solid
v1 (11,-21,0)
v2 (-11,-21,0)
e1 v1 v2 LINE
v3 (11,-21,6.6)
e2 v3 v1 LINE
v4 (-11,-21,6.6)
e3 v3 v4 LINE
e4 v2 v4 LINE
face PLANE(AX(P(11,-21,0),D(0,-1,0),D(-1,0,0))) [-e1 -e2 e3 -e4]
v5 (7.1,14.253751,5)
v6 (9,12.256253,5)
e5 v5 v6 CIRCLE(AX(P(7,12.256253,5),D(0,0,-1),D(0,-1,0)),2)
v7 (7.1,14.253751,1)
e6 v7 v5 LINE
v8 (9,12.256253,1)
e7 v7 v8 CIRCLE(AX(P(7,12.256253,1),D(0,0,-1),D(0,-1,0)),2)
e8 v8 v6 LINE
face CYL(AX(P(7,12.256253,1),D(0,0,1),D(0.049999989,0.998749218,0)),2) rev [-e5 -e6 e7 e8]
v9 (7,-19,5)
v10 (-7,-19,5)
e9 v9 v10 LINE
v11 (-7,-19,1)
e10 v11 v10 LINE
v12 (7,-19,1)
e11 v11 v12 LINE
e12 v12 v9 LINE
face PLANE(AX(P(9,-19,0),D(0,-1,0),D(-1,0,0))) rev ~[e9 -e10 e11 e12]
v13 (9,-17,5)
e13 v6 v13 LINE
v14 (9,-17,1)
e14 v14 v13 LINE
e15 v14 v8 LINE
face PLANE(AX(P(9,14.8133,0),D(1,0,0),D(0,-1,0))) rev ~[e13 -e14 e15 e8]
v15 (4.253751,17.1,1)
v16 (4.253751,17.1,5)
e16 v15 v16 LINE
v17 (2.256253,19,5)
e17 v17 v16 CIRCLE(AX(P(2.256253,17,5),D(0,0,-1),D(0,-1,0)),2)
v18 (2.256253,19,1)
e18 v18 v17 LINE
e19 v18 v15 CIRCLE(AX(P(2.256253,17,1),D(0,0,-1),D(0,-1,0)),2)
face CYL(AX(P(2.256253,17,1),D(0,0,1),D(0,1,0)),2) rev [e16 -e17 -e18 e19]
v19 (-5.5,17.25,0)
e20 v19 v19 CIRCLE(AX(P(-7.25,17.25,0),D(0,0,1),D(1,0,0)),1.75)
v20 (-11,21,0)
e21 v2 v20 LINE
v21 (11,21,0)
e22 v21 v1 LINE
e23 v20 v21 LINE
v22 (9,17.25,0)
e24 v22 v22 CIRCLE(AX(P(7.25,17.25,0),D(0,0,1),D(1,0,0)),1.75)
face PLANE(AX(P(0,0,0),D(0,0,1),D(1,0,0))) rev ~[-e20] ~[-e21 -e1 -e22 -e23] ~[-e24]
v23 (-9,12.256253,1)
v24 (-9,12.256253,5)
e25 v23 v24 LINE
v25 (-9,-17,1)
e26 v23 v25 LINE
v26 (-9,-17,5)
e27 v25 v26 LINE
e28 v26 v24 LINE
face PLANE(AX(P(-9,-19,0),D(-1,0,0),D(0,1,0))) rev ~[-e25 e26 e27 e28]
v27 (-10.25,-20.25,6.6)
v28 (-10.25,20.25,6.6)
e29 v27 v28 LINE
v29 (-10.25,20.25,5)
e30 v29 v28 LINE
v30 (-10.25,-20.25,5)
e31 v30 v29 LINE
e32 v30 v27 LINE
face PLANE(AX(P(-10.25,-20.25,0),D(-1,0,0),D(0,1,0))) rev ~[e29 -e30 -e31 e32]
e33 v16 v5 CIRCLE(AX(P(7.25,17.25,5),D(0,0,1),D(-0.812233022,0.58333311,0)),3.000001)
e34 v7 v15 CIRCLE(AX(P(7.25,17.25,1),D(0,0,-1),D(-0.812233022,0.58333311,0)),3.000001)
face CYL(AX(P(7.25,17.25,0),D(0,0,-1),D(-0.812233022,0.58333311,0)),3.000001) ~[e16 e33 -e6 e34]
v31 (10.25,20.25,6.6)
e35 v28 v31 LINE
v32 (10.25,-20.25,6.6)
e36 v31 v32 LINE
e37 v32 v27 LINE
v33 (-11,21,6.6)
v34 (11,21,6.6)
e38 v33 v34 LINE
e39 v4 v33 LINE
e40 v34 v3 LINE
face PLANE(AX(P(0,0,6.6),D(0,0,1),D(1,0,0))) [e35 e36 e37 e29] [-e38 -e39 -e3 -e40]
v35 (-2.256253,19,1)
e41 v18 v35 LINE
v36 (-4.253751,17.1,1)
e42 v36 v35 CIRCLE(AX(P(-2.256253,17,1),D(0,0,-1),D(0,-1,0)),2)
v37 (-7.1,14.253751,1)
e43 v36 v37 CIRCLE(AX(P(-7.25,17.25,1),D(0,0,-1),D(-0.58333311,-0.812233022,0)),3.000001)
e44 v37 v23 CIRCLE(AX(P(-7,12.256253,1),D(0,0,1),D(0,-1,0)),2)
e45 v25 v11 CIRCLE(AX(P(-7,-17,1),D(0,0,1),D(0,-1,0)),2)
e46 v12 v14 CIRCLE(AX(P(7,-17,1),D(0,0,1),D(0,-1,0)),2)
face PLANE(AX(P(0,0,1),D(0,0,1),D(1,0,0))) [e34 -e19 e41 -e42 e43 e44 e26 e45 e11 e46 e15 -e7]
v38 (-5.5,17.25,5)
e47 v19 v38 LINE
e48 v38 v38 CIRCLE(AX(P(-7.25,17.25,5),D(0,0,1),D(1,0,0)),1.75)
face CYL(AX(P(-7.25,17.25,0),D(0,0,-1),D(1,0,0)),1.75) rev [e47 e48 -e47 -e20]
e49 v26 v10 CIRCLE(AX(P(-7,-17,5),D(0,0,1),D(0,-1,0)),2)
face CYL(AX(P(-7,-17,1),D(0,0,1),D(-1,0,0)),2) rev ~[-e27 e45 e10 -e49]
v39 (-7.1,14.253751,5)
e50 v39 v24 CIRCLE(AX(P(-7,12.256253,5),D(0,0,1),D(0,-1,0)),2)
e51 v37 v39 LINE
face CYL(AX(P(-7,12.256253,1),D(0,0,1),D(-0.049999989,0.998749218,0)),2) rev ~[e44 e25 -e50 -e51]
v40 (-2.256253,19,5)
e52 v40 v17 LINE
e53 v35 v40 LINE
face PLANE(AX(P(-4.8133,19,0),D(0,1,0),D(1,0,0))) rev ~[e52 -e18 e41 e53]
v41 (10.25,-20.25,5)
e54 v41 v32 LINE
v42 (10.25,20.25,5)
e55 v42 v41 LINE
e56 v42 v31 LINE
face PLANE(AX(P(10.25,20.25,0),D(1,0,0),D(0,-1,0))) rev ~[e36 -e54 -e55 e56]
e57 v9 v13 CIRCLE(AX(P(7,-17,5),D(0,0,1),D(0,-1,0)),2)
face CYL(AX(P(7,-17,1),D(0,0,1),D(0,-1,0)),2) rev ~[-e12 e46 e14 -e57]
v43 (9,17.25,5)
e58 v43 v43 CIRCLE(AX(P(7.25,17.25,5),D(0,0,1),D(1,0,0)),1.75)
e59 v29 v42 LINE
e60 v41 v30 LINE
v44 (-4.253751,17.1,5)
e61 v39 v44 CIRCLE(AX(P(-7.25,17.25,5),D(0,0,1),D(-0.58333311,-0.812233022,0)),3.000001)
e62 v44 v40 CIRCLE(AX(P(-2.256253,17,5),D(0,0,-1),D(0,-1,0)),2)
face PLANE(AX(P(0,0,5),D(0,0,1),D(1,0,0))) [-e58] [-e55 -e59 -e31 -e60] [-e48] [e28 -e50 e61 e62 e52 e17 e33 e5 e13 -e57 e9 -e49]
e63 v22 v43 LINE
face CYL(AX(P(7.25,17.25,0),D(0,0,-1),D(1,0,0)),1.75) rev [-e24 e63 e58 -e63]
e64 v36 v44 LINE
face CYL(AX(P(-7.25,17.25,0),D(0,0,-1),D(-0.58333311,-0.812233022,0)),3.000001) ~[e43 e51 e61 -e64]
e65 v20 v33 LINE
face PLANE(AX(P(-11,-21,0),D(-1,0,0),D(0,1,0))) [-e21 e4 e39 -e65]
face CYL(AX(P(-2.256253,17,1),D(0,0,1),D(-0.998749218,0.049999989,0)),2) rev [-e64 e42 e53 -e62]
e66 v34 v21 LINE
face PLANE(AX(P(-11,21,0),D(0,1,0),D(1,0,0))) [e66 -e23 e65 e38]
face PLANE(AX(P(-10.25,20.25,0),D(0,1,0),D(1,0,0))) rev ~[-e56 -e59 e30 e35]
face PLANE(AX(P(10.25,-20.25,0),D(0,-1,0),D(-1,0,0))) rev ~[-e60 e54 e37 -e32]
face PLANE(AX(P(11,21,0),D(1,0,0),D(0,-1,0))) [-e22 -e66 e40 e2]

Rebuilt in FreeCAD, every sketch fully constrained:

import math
import FreeCAD as App
import Part
import Sketcher

V = App.Vector
Q = App.Units.Quantity


def edges_at(feature, points):
    """Names of the edges that pass closest to the given points."""
    edges = feature.Shape.Edges
    near = lambda p: min(range(len(edges)), key=lambda i: edges[i].distToShape(Part.Vertex(*p))[0])
    return sorted({f"Edge{near(p) + 1}" for p in points})

doc = App.newDocument("Part")
body = doc.addObject("PartDesign::Body", "Body")

# Sketch on XY plane
sketch1 = doc.addObject("Sketcher::SketchObject", "Sketch")
body.addObject(sketch1)
sketch1.AttachmentSupport = (doc.XY_Plane, [""])
sketch1.MapMode = "FlatFace"
sketch1.addGeometry(Part.LineSegment(V(11, 21, 0), V(-11, 21, 0)), False)
sketch1.addGeometry(Part.LineSegment(V(-11, 21, 0), V(-11, -21, 0)), False)
sketch1.addGeometry(Part.LineSegment(V(-11, -21, 0), V(11, -21, 0)), False)
sketch1.addGeometry(Part.LineSegment(V(11, -21, 0), V(11, 21, 0)), False)
sketch1.addGeometry(Part.LineSegment(V(10.25, 20.25, 0), V(10.25, -20.25, 0)), False)
sketch1.addGeometry(Part.LineSegment(V(10.25, -20.25, 0), V(-10.25, -20.25, 0)), False)
sketch1.addGeometry(Part.LineSegment(V(-10.25, -20.25, 0), V(-10.25, 20.25, 0)), False)
sketch1.addGeometry(Part.LineSegment(V(-10.25, 20.25, 0), V(10.25, 20.25, 0)), False)
sketch1.addConstraint(Sketcher.Constraint("Coincident", 0, 2, 1, 1))
sketch1.addConstraint(Sketcher.Constraint("Coincident", 1, 2, 2, 1))
sketch1.addConstraint(Sketcher.Constraint("Coincident", 2, 2, 3, 1))
sketch1.addConstraint(Sketcher.Constraint("Coincident", 3, 2, 0, 1))
sketch1.addConstraint(Sketcher.Constraint("Coincident", 4, 2, 5, 1))
sketch1.addConstraint(Sketcher.Constraint("Coincident", 5, 2, 6, 1))
sketch1.addConstraint(Sketcher.Constraint("Coincident", 6, 2, 7, 1))
sketch1.addConstraint(Sketcher.Constraint("Coincident", 7, 2, 4, 1))
sketch1.addConstraint(Sketcher.Constraint("Horizontal", 0))
sketch1.addConstraint(Sketcher.Constraint("Vertical", 1))
sketch1.addConstraint(Sketcher.Constraint("Horizontal", 2))
sketch1.addConstraint(Sketcher.Constraint("Vertical", 3))
sketch1.addConstraint(Sketcher.Constraint("Vertical", 4))
sketch1.addConstraint(Sketcher.Constraint("Horizontal", 5))
sketch1.addConstraint(Sketcher.Constraint("Vertical", 6))
sketch1.addConstraint(Sketcher.Constraint("Horizontal", 7))
sketch1.addConstraint(Sketcher.Constraint("Symmetric", 0, 2, 2, 2, -1, 1))
sketch1.addConstraint(Sketcher.Constraint("Symmetric", 4, 2, 6, 2, -1, 1))
sketch1.addConstraint(Sketcher.Constraint("DistanceX", 0, 2, 0, 1, Q("22 mm")))
sketch1.addConstraint(Sketcher.Constraint("DistanceY", 1, 2, 1, 1, Q("42 mm")))
sketch1.addConstraint(Sketcher.Constraint("DistanceX", 5, 2, 5, 1, Q("20.5 mm")))
sketch1.addConstraint(Sketcher.Constraint("DistanceY", 4, 2, 4, 1, Q("40.5 mm")))
pad1 = doc.addObject("PartDesign::Pad", "Pad")
body.addObject(pad1)
pad1.Profile = sketch1
pad1.Length = 6.6

# Sketch on XY plane
sketch2 = doc.addObject("Sketcher::SketchObject", "Sketch001")
body.addObject(sketch2)
sketch2.AttachmentSupport = (doc.XY_Plane, [""])
sketch2.MapMode = "FlatFace"
sketch2.addGeometry(Part.LineSegment(V(-10.25, -20.25, 0), V(10.25, -20.25, 0)), False)
sketch2.addGeometry(Part.LineSegment(V(10.25, -20.25, 0), V(10.25, 20.25, 0)), False)
sketch2.addGeometry(Part.LineSegment(V(10.25, 20.25, 0), V(-10.25, 20.25, 0)), False)
sketch2.addGeometry(Part.LineSegment(V(-10.25, 20.25, 0), V(-10.25, -20.25, 0)), False)
sketch2.addGeometry(Part.Circle(V(-7.25, 17.25, 0), V(0, 0, 1), 1.75), False)
sketch2.addGeometry(Part.Circle(V(7.25, 17.25, 0), V(0, 0, 1), 1.75), False)
sketch2.addConstraint(Sketcher.Constraint("Coincident", 0, 2, 1, 1))
sketch2.addConstraint(Sketcher.Constraint("Coincident", 1, 2, 2, 1))
sketch2.addConstraint(Sketcher.Constraint("Coincident", 2, 2, 3, 1))
sketch2.addConstraint(Sketcher.Constraint("Coincident", 3, 2, 0, 1))
sketch2.addConstraint(Sketcher.Constraint("Horizontal", 0))
sketch2.addConstraint(Sketcher.Constraint("Vertical", 1))
sketch2.addConstraint(Sketcher.Constraint("Horizontal", 2))
sketch2.addConstraint(Sketcher.Constraint("Vertical", 3))
sketch2.addConstraint(Sketcher.Constraint("Equal", 4, 5))
sketch2.addConstraint(Sketcher.Constraint("Symmetric", 0, 2, 2, 2, -1, 1))
sketch2.addConstraint(Sketcher.Constraint("Symmetric", 4, 3, 5, 3, -2))
sketch2.addConstraint(Sketcher.Constraint("Diameter", 4, Q("3.5 mm")))
sketch2.addConstraint(Sketcher.Constraint("DistanceX", 5, 3, 0, 2, Q("3 mm")))
sketch2.addConstraint(Sketcher.Constraint("DistanceY", 5, 3, 1, 2, Q("3 mm")))
sketch2.addConstraint(Sketcher.Constraint("DistanceX", 0, 1, 0, 2, Q("20.5 mm")))
sketch2.addConstraint(Sketcher.Constraint("DistanceY", 1, 1, 1, 2, Q("40.5 mm")))
pad2 = doc.addObject("PartDesign::Pad", "Pad001")
body.addObject(pad2)
pad2.Profile = sketch2
pad2.Length = 1

# Sketch on XY plane
sketch3 = doc.addObject("Sketcher::SketchObject", "Sketch002")
body.addObject(sketch3)
sketch3.AttachmentSupport = (doc.XY_Plane, [""])
sketch3.MapMode = "FlatFace"
sketch3.addGeometry(Part.LineSegment(V(11, 21, 0), V(-11, 21, 0)), False)
sketch3.addGeometry(Part.LineSegment(V(-11, 21, 0), V(-11, -21, 0)), False)
sketch3.addGeometry(Part.LineSegment(V(-11, -21, 0), V(11, -21, 0)), False)
sketch3.addGeometry(Part.LineSegment(V(11, -21, 0), V(11, 21, 0)), False)
sketch3.addGeometry(Part.ArcOfCircle(Part.Circle(V(-7.25, 17.25, 0), V(0, 0, 1), 3.000001), math.radians(-125.685319), math.radians(35.685319)), False)
sketch3.addGeometry(Part.LineSegment(V(-4.8133, 19, 0), V(4.8133, 19, 0)), False)
sketch3.addGeometry(Part.ArcOfCircle(Part.Circle(V(7.25, 17.25, 0), V(0, 0, 1), 3.000001), math.radians(144.314681), math.radians(305.685319)), False)
sketch3.addGeometry(Part.LineSegment(V(9, 14.8133, 0), V(9, -19, 0)), False)
sketch3.addGeometry(Part.LineSegment(V(9, -19, 0), V(-9, -19, 0)), False)
sketch3.addGeometry(Part.LineSegment(V(-9, -19, 0), V(-9, 14.8133, 0)), False)
sketch3.addGeometry(Part.Circle(V(7.25, 17.25, 0), V(0, 0, 1), 1.75), False)
sketch3.addGeometry(Part.Circle(V(-7.25, 17.25, 0), V(0, 0, 1), 1.75), False)
sketch3.addConstraint(Sketcher.Constraint("Coincident", 0, 2, 1, 1))
sketch3.addConstraint(Sketcher.Constraint("Coincident", 1, 2, 2, 1))
sketch3.addConstraint(Sketcher.Constraint("Coincident", 2, 2, 3, 1))
sketch3.addConstraint(Sketcher.Constraint("Coincident", 3, 2, 0, 1))
sketch3.addConstraint(Sketcher.Constraint("Coincident", 4, 2, 5, 1))
sketch3.addConstraint(Sketcher.Constraint("Coincident", 5, 2, 6, 1))
sketch3.addConstraint(Sketcher.Constraint("Coincident", 6, 2, 7, 1))
sketch3.addConstraint(Sketcher.Constraint("Coincident", 7, 2, 8, 1))
sketch3.addConstraint(Sketcher.Constraint("Coincident", 8, 2, 9, 1))
sketch3.addConstraint(Sketcher.Constraint("Coincident", 9, 2, 4, 1))
sketch3.addConstraint(Sketcher.Constraint("Horizontal", 0))
sketch3.addConstraint(Sketcher.Constraint("Vertical", 1))
sketch3.addConstraint(Sketcher.Constraint("Horizontal", 2))
sketch3.addConstraint(Sketcher.Constraint("Vertical", 3))
sketch3.addConstraint(Sketcher.Constraint("Horizontal", 5))
sketch3.addConstraint(Sketcher.Constraint("Vertical", 7))
sketch3.addConstraint(Sketcher.Constraint("Horizontal", 8))
sketch3.addConstraint(Sketcher.Constraint("Vertical", 9))
sketch3.addConstraint(Sketcher.Constraint("Coincident", 10, 3, 6, 3))
sketch3.addConstraint(Sketcher.Constraint("Coincident", 11, 3, 4, 3))
sketch3.addConstraint(Sketcher.Constraint("Equal", 4, 6))
sketch3.addConstraint(Sketcher.Constraint("Equal", 10, 11))
sketch3.addConstraint(Sketcher.Constraint("Symmetric", 0, 2, 2, 2, -1, 1))
sketch3.addConstraint(Sketcher.Constraint("Symmetric", 4, 3, 6, 3, -2))
sketch3.addConstraint(Sketcher.Constraint("Horizontal", 6, 2, 9, 2))
sketch3.addConstraint(Sketcher.Constraint("Radius", 4, Q("3 mm")))
sketch3.addConstraint(Sketcher.Constraint("Diameter", 10, Q("3.5 mm")))
sketch3.addConstraint(Sketcher.Constraint("DistanceX", 1, 2, 7, 2, Q("20 mm")))
sketch3.addConstraint(Sketcher.Constraint("DistanceX", 0, 2, 0, 1, Q("22 mm")))
sketch3.addConstraint(Sketcher.Constraint("DistanceY", 1, 2, 1, 1, Q("42 mm")))
sketch3.addConstraint(Sketcher.Constraint("DistanceY", -1, 1, 4, 2, Q("19 mm")))
sketch3.addConstraint(Sketcher.Constraint("DistanceY", 7, 2, -1, 1, Q("19 mm")))
sketch3.addConstraint(Sketcher.Constraint("DistanceX", 4, 3, 6, 3, Q("14.5 mm")))
sketch3.addConstraint(Sketcher.Constraint("DistanceY", -1, 1, 4, 3, Q("17.25 mm")))
pad3 = doc.addObject("PartDesign::Pad", "Pad002")
body.addObject(pad3)
pad3.Profile = sketch3
pad3.Length = 5
doc.recompute()

fillet = doc.addObject("PartDesign::Fillet", "Fillet")
body.addObject(fillet)
fillet.Base = (pad3, edges_at(pad3, [
    (-9, 14.813, 3),
    (-4.813, 19, 3),
    (4.813, 19, 3),
    (9, 14.813, 3),
    (-9, -19, 3),
    (9, -19, 3),
]))
fillet.Radius = 2

doc.recompute()
